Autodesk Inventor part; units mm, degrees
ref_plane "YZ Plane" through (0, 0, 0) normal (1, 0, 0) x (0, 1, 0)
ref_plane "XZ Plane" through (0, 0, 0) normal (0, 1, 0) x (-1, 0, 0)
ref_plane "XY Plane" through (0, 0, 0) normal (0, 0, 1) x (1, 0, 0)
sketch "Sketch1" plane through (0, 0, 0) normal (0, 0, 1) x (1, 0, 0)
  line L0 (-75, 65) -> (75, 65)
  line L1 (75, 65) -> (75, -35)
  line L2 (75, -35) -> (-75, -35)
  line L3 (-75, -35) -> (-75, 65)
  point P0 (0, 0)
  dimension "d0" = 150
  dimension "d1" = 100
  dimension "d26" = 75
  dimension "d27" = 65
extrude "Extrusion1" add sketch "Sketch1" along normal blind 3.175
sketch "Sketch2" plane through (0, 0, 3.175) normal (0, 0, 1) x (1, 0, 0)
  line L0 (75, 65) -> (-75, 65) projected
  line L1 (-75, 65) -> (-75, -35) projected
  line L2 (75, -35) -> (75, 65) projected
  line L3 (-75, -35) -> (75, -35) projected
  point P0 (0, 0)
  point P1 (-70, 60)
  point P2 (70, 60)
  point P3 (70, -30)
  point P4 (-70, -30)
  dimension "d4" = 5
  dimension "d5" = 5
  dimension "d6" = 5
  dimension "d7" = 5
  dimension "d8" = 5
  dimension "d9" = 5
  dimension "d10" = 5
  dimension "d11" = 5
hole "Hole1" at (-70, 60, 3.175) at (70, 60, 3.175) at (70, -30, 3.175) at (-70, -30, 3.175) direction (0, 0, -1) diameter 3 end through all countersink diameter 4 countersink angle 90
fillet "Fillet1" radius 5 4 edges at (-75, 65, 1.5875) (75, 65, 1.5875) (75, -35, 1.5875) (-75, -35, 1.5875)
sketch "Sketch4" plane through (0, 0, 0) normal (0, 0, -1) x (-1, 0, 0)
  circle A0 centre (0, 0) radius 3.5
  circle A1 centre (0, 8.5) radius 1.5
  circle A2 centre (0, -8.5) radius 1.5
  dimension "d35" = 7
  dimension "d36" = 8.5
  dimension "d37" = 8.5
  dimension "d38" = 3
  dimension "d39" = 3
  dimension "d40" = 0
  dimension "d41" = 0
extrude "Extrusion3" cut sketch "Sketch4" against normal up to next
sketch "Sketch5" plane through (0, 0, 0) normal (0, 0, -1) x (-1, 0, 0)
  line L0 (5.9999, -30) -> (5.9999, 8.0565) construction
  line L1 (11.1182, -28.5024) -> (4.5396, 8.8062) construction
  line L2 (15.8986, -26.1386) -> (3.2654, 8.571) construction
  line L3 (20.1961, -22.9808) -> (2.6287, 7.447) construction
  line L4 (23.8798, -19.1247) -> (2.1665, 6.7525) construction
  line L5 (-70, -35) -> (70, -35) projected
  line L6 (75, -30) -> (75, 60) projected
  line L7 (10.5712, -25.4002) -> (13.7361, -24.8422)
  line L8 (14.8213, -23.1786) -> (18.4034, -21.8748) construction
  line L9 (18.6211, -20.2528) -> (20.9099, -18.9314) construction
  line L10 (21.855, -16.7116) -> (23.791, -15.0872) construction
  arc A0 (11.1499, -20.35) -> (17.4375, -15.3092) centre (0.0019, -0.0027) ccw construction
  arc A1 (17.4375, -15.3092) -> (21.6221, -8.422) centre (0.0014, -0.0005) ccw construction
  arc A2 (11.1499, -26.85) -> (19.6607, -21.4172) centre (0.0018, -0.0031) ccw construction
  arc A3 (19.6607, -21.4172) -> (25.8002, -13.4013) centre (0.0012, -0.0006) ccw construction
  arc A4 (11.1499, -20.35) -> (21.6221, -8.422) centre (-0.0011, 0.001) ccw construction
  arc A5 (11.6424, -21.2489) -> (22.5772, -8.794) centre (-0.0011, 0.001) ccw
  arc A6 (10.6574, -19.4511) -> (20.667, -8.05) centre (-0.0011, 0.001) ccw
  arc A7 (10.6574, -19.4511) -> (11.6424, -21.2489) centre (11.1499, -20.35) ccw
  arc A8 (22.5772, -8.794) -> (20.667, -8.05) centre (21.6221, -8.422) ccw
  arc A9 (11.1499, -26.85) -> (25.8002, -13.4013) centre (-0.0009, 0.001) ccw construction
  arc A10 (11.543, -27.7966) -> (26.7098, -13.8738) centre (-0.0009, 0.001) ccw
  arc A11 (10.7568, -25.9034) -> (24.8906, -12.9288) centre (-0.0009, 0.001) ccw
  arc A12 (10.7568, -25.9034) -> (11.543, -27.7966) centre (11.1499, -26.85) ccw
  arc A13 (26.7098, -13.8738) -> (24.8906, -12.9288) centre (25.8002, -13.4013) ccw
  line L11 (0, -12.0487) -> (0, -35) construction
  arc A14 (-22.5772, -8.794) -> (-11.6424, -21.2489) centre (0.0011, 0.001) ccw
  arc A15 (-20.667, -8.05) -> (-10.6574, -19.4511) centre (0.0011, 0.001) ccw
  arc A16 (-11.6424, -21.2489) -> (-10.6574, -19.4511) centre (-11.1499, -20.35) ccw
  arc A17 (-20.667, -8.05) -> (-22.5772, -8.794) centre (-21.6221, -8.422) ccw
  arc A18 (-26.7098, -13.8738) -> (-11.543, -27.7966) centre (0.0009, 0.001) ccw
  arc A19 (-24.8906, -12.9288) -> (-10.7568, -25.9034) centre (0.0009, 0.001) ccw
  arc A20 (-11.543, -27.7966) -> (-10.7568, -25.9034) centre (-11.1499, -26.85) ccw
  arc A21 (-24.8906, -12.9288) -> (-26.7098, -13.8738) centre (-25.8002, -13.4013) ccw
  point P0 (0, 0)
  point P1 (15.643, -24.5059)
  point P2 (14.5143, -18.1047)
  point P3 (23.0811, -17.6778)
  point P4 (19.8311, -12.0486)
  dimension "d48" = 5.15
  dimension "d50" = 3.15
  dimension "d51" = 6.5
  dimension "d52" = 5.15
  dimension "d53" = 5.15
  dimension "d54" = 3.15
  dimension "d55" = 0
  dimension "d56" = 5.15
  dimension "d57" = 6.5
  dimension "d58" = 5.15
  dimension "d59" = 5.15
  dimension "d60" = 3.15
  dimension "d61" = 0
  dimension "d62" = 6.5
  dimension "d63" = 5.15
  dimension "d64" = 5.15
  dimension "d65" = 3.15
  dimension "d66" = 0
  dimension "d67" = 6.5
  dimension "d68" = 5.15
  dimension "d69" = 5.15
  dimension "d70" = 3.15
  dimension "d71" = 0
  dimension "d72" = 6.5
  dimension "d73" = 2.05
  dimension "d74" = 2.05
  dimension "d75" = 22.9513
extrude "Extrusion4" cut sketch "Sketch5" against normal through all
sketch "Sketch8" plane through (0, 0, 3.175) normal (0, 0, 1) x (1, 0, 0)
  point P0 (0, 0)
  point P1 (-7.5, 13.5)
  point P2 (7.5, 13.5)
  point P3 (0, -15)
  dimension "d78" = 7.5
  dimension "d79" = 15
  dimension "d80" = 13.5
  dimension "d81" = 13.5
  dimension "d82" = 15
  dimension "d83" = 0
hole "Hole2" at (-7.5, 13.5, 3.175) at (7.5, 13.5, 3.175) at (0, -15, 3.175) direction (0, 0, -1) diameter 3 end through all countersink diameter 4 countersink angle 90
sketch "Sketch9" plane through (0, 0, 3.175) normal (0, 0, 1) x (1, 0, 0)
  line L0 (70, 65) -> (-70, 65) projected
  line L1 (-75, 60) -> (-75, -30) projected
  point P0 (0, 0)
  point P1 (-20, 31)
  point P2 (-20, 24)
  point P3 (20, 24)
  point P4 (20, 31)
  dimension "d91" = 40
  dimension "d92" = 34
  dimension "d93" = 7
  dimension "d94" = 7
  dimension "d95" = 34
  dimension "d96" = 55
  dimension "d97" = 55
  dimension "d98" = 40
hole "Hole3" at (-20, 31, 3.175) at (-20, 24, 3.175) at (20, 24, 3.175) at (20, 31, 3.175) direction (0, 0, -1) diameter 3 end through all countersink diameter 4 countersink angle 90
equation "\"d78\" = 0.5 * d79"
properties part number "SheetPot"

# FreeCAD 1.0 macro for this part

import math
import FreeCAD as App
import Part
import Sketcher

V = App.Vector
Q = App.Units.Quantity


def edges_at(feature, points):
    """Names of the edges that pass closest to the given points."""
    edges = feature.Shape.Edges
    near = lambda p: min(range(len(edges)), key=lambda i: edges[i].distToShape(Part.Vertex(*p))[0])
    return sorted({f"Edge{near(p) + 1}" for p in points})

doc = App.newDocument("Part")
params = doc.addObject("Spreadsheet::Sheet", "Params")
for row, (alias, value) in enumerate([
    ("sketch1_height", "3.937 in"),
    ("pad1_length", "0.125 in"),
    ("hole_diameter", "0.1181102 in"),
    ("hole_csink_diameter", "4 mm"),
    ("fillet_radius", "5 mm"),
    ("hole2_diameter", "0.1181102 in"),
    ("hole2_csink_diameter", "4 mm"),
    ("hole3_diameter", "0.1181102 in"),
    ("hole3_csink_diameter", "4 mm"),
], start=1):
    params.set(f"A{row}", alias)
    params.set(f"B{row}", "=" + value)
    params.setAlias(f"B{row}", alias)

body = doc.addObject("PartDesign::Body", "Body")

sketch1 = doc.addObject("Sketcher::SketchObject", "Sketch")
body.addObject(sketch1)
sketch1.AttachmentSupport = (doc.XY_Plane, [""])
sketch1.MapMode = "FlatFace"
sketch1.addGeometry([
    Part.LineSegment(V(75, 65, 0), V(-75, 65, 0)),
    Part.LineSegment(V(-75, 65, 0), V(-75, -35, 0)),
    Part.LineSegment(V(-75, -35, 0), V(75, -35, 0)),
    Part.LineSegment(V(75, -35, 0), V(75, 65, 0)),
], False)
sketch1.addConstraint([
    Sketcher.Constraint("Coincident", 0, 2, 1, 1),
    Sketcher.Constraint("Coincident", 1, 2, 2, 1),
    Sketcher.Constraint("Coincident", 2, 2, 3, 1),
    Sketcher.Constraint("Coincident", 3, 2, 0, 1),
    Sketcher.Constraint("Horizontal", 0),
    Sketcher.Constraint("Vertical", 1),
    Sketcher.Constraint("Horizontal", 2),
    Sketcher.Constraint("Vertical", 3),
    Sketcher.Constraint("DistanceY", 1, 2, 1, 1, Q("3.937 in")),
    Sketcher.Constraint("DistanceX", 0, 2, 0, 1, Q("5.9055 in")),
    Sketcher.Constraint("DistanceX", 0, 2, -1, 1, Q("75 mm")),
    Sketcher.Constraint("DistanceY", -1, 1, 0, 2, Q("65 mm")),
])
sketch1.setExpression("Constraints[8]", "Params.sketch1_height")
pad1 = doc.addObject("PartDesign::Pad", "Pad")
body.addObject(pad1)
pad1.Profile = sketch1
pad1.setExpression("Length", "Params.pad1_length")

sketch2 = doc.addObject("Sketcher::SketchObject", "Sketch001")
body.addObject(sketch2)
sketch2.AttachmentSupport = (doc.XY_Plane, [""])
sketch2.MapMode = "FlatFace"
sketch2.AttachmentOffset = App.Placement(V(0, 0, 0.125 * 25.4), App.Rotation())
sketch2.addGeometry([
    Part.Circle(V(-70, 60, 0), V(0, 0, 1), 1.5),
    Part.Circle(V(70, 60, 0), V(0, 0, 1), 1.5),
    Part.Circle(V(70, -30, 0), V(0, 0, 1), 1.5),
    Part.Circle(V(-70, -30, 0), V(0, 0, 1), 1.5),
], False)
sketch2.addConstraint([
    Sketcher.Constraint("Equal", 0, 1),
    Sketcher.Constraint("Equal", 1, 2),
    Sketcher.Constraint("Equal", 2, 3),
    Sketcher.Constraint("Symmetric", 0, 3, 1, 3, -2),
    Sketcher.Constraint("Symmetric", 2, 3, 3, 3, -2),
    Sketcher.Constraint("Vertical", 1, 3, 2, 3),
    Sketcher.Constraint("Diameter", 0, Q("0.1181 in")),
    Sketcher.Constraint("DistanceX", 0, 3, -1, 1, Q("2.7559 in")),
    Sketcher.Constraint("DistanceY", -1, 1, 0, 3, Q("2.3622 in")),
    Sketcher.Constraint("DistanceY", 2, 3, -1, 1, Q("1.1811 in")),
])
doc.recompute()
hole = doc.addObject("PartDesign::Hole", "Hole")
body.addObject(hole)
hole.Profile = sketch2
hole.ThreadType = "None"
hole.setExpression("Diameter", "Params.hole_diameter")
hole.DepthType = "ThroughAll"
hole.HoleCutType = "Countersink"
hole.setExpression("HoleCutDiameter", "Params.hole_csink_diameter")
hole.HoleCutCountersinkAngle = 90
doc.recompute()

fillet = doc.addObject("PartDesign::Fillet", "Fillet")
body.addObject(fillet)
fillet.Base = (hole, edges_at(hole, [
    (-75, 65, 1.587),
    (75, 65, 1.587),
    (75, -35, 1.587),
    (-75, -35, 1.587),
]))
fillet.setExpression("Radius", "Params.fillet_radius")

sketch3 = doc.addObject("Sketcher::SketchObject", "Sketch002")
body.addObject(sketch3)
sketch3.AttachmentSupport = (doc.XY_Plane, [""])
sketch3.MapMode = "FlatFace"
sketch3.addGeometry([
    Part.Circle(V(0, 0, 0), V(0, 0, 1), 3.5),
    Part.Circle(V(0, 8.5, 0), V(0, 0, 1), 1.5),
    Part.Circle(V(0, -8.5, 0), V(0, 0, 1), 1.5),
], False)
sketch3.addConstraint([
    Sketcher.Constraint("Coincident", 0, 3, -1, 1),
    Sketcher.Constraint("Equal", 1, 2),
    Sketcher.Constraint("Symmetric", 1, 3, 2, 3, -1, 1),
    Sketcher.Constraint("PointOnObject", 1, 3, -2),
    Sketcher.Constraint("Diameter", 0, Q("0.2756 in")),
    Sketcher.Constraint("Diameter", 1, Q("0.1181 in")),
    Sketcher.Constraint("DistanceY", -1, 1, 1, 3, Q("8.5 mm")),
])
pocket1 = doc.addObject("PartDesign::Pocket", "Pocket")
body.addObject(pocket1)
pocket1.Profile = sketch3
pocket1.Type = "UpToFirst"
pocket1.Reversed = True

sketch4 = doc.addObject("Sketcher::SketchObject", "Sketch003")
body.addObject(sketch4)
sketch4.AttachmentSupport = (doc.XY_Plane, [""])
sketch4.MapMode = "FlatFace"
sketch4.addGeometry([
    Part.ArcOfCircle(Part.Circle(V(-11.1499, -20.35, 0), V(0, 0, 1), 1.024977), math.radians(-118.717976), math.radians(61.282024)),
    Part.ArcOfCircle(Part.Circle(V(0.0011, 0.001, 0), V(0, 0, 1), 24.230752), math.radians(-158.717429), math.radians(-118.719744)),
    Part.ArcOfCircle(Part.Circle(V(-21.6221, -8.422, 0), V(0, 0, 1), 1.024988), math.radians(21.280317), math.radians(201.280317)),
    Part.ArcOfCircle(Part.Circle(V(0.0011, 0.001, 0), V(0, 0, 1), 22.180798), math.radians(-158.717221), math.radians(-118.719908)),
    Part.ArcOfCircle(Part.Circle(V(-11.1499, -26.85, 0), V(0, 0, 1), 1.024978), math.radians(-112.551925), math.radians(67.448075)),
    Part.ArcOfCircle(Part.Circle(V(0.0009, 0.001, 0), V(0, 0, 1), 30.099306), math.radians(-152.550503), math.radians(-112.552333)),
    Part.ArcOfCircle(Part.Circle(V(-25.8002, -13.4013, 0), V(0, 0, 1), 1.025002), math.radians(27.450031), math.radians(207.450031)),
    Part.ArcOfCircle(Part.Circle(V(0.0009, 0.001, 0), V(0, 0, 1), 28.04935), math.radians(-152.550542), math.radians(-112.552362)),
    Part.ArcOfCircle(Part.Circle(V(21.6221, -8.422, 0), V(0, 0, 1), 1.024988), math.radians(-21.280317), math.radians(158.719683)),
    Part.ArcOfCircle(Part.Circle(V(-0.0011, 0.001, 0), V(0, 0, 1), 24.2308), math.radians(-61.280256), math.radians(-21.282571)),
    Part.ArcOfCircle(Part.Circle(V(11.1499, -20.35, 0), V(0, 0, 1), 1.024977), math.radians(118.717976), math.radians(298.717976)),
    Part.ArcOfCircle(Part.Circle(V(-0.0011, 0.001, 0), V(0, 0, 1), 22.180824), math.radians(-61.280092), math.radians(-21.282779)),
    Part.ArcOfCircle(Part.Circle(V(25.8002, -13.4013, 0), V(0, 0, 1), 1.025002), math.radians(-27.450031), math.radians(152.549969)),
    Part.ArcOfCircle(Part.Circle(V(-0.0009, 0.001, 0), V(0, 0, 1), 30.099362), math.radians(-67.447667), math.radians(-27.449497)),
    Part.ArcOfCircle(Part.Circle(V(11.1499, -26.85, 0), V(0, 0, 1), 1.024978), math.radians(112.551925), math.radians(292.551925)),
    Part.ArcOfCircle(Part.Circle(V(-0.0009, 0.001, 0), V(0, 0, 1), 28.049358), math.radians(-67.447638), math.radians(-27.449458)),
], False)
sketch4.addConstraint([
    Sketcher.Constraint("Tangent", 0, 1, 1, 2),
    Sketcher.Constraint("Tangent", 1, 1, 2, 2),
    Sketcher.Constraint("Tangent", 2, 1, 3, 1),
    Sketcher.Constraint("Tangent", 3, 2, 0, 2),
    Sketcher.Constraint("Tangent", 4, 1, 5, 2),
    Sketcher.Constraint("Tangent", 5, 1, 6, 2),
    Sketcher.Constraint("Tangent", 6, 1, 7, 1),
    Sketcher.Constraint("Tangent", 7, 2, 4, 2),
    Sketcher.Constraint("Tangent", 8, 1, 9, 2),
    Sketcher.Constraint("Tangent", 9, 1, 10, 2),
    Sketcher.Constraint("Tangent", 10, 1, 11, 1),
    Sketcher.Constraint("Tangent", 11, 2, 8, 2),
    Sketcher.Constraint("Tangent", 12, 1, 13, 2),
    Sketcher.Constraint("Tangent", 13, 1, 14, 2),
    Sketcher.Constraint("Tangent", 14, 1, 15, 1),
    Sketcher.Constraint("Tangent", 15, 2, 12, 2),
    Sketcher.Constraint("Coincident", 3, 3, 1, 3),
    Sketcher.Constraint("Coincident", 5, 3, 1, 3),
    Sketcher.Constraint("Coincident", 7, 3, 1, 3),
    Sketcher.Constraint("Coincident", 11, 3, 9, 3),
    Sketcher.Constraint("Coincident", 13, 3, 9, 3),
    Sketcher.Constraint("Coincident", 15, 3, 9, 3),
    Sketcher.Constraint("Equal", 2, 4),
    Sketcher.Constraint("Equal", 6, 8),
    Sketcher.Constraint("Equal", 1, 9),
    Sketcher.Constraint("Equal", 10, 12),
    Sketcher.Constraint("Equal", 5, 13),
    Sketcher.Constraint("Symmetric", 2, 3, 8, 3, -2),
    Sketcher.Constraint("Symmetric", 0, 3, 10, 3, -2),
    Sketcher.Constraint("Horizontal", 6, 3, 12, 3),
    Sketcher.Constraint("Horizontal", 4, 3, 14, 3),
    Sketcher.Constraint("Vertical", 0, 3, 4, 3),
    Sketcher.Constraint("Radius", 0, Q("1.025 mm")),
    Sketcher.Constraint("Radius", 7, Q("1.1043 in")),
    Sketcher.Constraint("DistanceY", 4, 3, 0, 3, Q("0.2559 in")),
    Sketcher.Constraint("DistanceY", 5, 1, 1, 1, Q("0.2 in")),
    Sketcher.Constraint("Radius", 1, Q("24.2308 mm")),
    Sketcher.Constraint("DistanceY", 6, 1, -1, 1, Q("0.509 in")),
    Sketcher.Constraint("DistanceY", 0, 1, 2, 3, Q("0.505 in")),
    Sketcher.Constraint("DistanceX", 7, 2, -1, 1, Q("0.4235 in")),
])
pocket2 = doc.addObject("PartDesign::Pocket", "Pocket001")
body.addObject(pocket2)
pocket2.Profile = sketch4
pocket2.Type = "ThroughAll"
pocket2.Reversed = True

sketch5 = doc.addObject("Sketcher::SketchObject", "Sketch004")
body.addObject(sketch5)
sketch5.AttachmentSupport = (doc.XY_Plane, [""])
sketch5.MapMode = "FlatFace"
sketch5.AttachmentOffset = App.Placement(V(0, 0, 0.125 * 25.4), App.Rotation())
sketch5.addGeometry([
    Part.Circle(V(-7.5, 13.5, 0), V(0, 0, 1), 1.5),
    Part.Circle(V(7.5, 13.5, 0), V(0, 0, 1), 1.5),
    Part.Circle(V(0, -15, 0), V(0, 0, 1), 1.5),
], False)
sketch5.addConstraint([
    Sketcher.Constraint("Equal", 0, 1),
    Sketcher.Constraint("Equal", 1, 2),
    Sketcher.Constraint("Symmetric", 0, 3, 1, 3, -2),
    Sketcher.Constraint("PointOnObject", 2, 3, -2),
    Sketcher.Constraint("Diameter", 0, Q("0.1181 in")),
    Sketcher.Constraint("DistanceY", -1, 1, 0, 3, Q("0.5315 in")),
    Sketcher.Constraint("DistanceX", 0, 3, -1, 1, Q("7.5 mm")),
    Sketcher.Constraint("DistanceY", 2, 3, -1, 1, Q("15 mm")),
])
doc.recompute()
hole2 = doc.addObject("PartDesign::Hole", "Hole001")
body.addObject(hole2)
hole2.Profile = sketch5
hole2.ThreadType = "None"
hole2.setExpression("Diameter", "Params.hole2_diameter")
hole2.DepthType = "ThroughAll"
hole2.HoleCutType = "Countersink"
hole2.setExpression("HoleCutDiameter", "Params.hole2_csink_diameter")
hole2.HoleCutCountersinkAngle = 90

sketch6 = doc.addObject("Sketcher::SketchObject", "Sketch005")
body.addObject(sketch6)
sketch6.AttachmentSupport = (doc.XY_Plane, [""])
sketch6.MapMode = "FlatFace"
sketch6.AttachmentOffset = App.Placement(V(0, 0, 0.125 * 25.4), App.Rotation())
sketch6.addGeometry([
    Part.Circle(V(-20, 31, 0), V(0, 0, 1), 1.5),
    Part.Circle(V(-20, 24, 0), V(0, 0, 1), 1.5),
    Part.Circle(V(20, 24, 0), V(0, 0, 1), 1.5),
    Part.Circle(V(20, 31, 0), V(0, 0, 1), 1.5),
], False)
sketch6.addConstraint([
    Sketcher.Constraint("Equal", 0, 1),
    Sketcher.Constraint("Equal", 1, 2),
    Sketcher.Constraint("Equal", 2, 3),
    Sketcher.Constraint("Symmetric", 1, 3, 2, 3, -2),
    Sketcher.Constraint("Symmetric", 0, 3, 3, 3, -2),
    Sketcher.Constraint("Vertical", 0, 3, 1, 3),
    Sketcher.Constraint("Diameter", 0, Q("0.1181 in")),
    Sketcher.Constraint("DistanceX", 0, 3, -1, 1, Q("0.7874 in")),
    Sketcher.Constraint("DistanceY", 1, 3, 0, 3, Q("0.2756 in")),
    Sketcher.Constraint("DistanceY", -1, 1, 0, 3, Q("31 mm")),
])
doc.recompute()
hole3 = doc.addObject("PartDesign::Hole", "Hole002")
body.addObject(hole3)
hole3.Profile = sketch6
hole3.ThreadType = "None"
hole3.setExpression("Diameter", "Params.hole3_diameter")
hole3.DepthType = "ThroughAll"
hole3.HoleCutType = "Countersink"
hole3.setExpression("HoleCutDiameter", "Params.hole3_csink_diameter")
hole3.HoleCutCountersinkAngle = 90

doc.recompute()
